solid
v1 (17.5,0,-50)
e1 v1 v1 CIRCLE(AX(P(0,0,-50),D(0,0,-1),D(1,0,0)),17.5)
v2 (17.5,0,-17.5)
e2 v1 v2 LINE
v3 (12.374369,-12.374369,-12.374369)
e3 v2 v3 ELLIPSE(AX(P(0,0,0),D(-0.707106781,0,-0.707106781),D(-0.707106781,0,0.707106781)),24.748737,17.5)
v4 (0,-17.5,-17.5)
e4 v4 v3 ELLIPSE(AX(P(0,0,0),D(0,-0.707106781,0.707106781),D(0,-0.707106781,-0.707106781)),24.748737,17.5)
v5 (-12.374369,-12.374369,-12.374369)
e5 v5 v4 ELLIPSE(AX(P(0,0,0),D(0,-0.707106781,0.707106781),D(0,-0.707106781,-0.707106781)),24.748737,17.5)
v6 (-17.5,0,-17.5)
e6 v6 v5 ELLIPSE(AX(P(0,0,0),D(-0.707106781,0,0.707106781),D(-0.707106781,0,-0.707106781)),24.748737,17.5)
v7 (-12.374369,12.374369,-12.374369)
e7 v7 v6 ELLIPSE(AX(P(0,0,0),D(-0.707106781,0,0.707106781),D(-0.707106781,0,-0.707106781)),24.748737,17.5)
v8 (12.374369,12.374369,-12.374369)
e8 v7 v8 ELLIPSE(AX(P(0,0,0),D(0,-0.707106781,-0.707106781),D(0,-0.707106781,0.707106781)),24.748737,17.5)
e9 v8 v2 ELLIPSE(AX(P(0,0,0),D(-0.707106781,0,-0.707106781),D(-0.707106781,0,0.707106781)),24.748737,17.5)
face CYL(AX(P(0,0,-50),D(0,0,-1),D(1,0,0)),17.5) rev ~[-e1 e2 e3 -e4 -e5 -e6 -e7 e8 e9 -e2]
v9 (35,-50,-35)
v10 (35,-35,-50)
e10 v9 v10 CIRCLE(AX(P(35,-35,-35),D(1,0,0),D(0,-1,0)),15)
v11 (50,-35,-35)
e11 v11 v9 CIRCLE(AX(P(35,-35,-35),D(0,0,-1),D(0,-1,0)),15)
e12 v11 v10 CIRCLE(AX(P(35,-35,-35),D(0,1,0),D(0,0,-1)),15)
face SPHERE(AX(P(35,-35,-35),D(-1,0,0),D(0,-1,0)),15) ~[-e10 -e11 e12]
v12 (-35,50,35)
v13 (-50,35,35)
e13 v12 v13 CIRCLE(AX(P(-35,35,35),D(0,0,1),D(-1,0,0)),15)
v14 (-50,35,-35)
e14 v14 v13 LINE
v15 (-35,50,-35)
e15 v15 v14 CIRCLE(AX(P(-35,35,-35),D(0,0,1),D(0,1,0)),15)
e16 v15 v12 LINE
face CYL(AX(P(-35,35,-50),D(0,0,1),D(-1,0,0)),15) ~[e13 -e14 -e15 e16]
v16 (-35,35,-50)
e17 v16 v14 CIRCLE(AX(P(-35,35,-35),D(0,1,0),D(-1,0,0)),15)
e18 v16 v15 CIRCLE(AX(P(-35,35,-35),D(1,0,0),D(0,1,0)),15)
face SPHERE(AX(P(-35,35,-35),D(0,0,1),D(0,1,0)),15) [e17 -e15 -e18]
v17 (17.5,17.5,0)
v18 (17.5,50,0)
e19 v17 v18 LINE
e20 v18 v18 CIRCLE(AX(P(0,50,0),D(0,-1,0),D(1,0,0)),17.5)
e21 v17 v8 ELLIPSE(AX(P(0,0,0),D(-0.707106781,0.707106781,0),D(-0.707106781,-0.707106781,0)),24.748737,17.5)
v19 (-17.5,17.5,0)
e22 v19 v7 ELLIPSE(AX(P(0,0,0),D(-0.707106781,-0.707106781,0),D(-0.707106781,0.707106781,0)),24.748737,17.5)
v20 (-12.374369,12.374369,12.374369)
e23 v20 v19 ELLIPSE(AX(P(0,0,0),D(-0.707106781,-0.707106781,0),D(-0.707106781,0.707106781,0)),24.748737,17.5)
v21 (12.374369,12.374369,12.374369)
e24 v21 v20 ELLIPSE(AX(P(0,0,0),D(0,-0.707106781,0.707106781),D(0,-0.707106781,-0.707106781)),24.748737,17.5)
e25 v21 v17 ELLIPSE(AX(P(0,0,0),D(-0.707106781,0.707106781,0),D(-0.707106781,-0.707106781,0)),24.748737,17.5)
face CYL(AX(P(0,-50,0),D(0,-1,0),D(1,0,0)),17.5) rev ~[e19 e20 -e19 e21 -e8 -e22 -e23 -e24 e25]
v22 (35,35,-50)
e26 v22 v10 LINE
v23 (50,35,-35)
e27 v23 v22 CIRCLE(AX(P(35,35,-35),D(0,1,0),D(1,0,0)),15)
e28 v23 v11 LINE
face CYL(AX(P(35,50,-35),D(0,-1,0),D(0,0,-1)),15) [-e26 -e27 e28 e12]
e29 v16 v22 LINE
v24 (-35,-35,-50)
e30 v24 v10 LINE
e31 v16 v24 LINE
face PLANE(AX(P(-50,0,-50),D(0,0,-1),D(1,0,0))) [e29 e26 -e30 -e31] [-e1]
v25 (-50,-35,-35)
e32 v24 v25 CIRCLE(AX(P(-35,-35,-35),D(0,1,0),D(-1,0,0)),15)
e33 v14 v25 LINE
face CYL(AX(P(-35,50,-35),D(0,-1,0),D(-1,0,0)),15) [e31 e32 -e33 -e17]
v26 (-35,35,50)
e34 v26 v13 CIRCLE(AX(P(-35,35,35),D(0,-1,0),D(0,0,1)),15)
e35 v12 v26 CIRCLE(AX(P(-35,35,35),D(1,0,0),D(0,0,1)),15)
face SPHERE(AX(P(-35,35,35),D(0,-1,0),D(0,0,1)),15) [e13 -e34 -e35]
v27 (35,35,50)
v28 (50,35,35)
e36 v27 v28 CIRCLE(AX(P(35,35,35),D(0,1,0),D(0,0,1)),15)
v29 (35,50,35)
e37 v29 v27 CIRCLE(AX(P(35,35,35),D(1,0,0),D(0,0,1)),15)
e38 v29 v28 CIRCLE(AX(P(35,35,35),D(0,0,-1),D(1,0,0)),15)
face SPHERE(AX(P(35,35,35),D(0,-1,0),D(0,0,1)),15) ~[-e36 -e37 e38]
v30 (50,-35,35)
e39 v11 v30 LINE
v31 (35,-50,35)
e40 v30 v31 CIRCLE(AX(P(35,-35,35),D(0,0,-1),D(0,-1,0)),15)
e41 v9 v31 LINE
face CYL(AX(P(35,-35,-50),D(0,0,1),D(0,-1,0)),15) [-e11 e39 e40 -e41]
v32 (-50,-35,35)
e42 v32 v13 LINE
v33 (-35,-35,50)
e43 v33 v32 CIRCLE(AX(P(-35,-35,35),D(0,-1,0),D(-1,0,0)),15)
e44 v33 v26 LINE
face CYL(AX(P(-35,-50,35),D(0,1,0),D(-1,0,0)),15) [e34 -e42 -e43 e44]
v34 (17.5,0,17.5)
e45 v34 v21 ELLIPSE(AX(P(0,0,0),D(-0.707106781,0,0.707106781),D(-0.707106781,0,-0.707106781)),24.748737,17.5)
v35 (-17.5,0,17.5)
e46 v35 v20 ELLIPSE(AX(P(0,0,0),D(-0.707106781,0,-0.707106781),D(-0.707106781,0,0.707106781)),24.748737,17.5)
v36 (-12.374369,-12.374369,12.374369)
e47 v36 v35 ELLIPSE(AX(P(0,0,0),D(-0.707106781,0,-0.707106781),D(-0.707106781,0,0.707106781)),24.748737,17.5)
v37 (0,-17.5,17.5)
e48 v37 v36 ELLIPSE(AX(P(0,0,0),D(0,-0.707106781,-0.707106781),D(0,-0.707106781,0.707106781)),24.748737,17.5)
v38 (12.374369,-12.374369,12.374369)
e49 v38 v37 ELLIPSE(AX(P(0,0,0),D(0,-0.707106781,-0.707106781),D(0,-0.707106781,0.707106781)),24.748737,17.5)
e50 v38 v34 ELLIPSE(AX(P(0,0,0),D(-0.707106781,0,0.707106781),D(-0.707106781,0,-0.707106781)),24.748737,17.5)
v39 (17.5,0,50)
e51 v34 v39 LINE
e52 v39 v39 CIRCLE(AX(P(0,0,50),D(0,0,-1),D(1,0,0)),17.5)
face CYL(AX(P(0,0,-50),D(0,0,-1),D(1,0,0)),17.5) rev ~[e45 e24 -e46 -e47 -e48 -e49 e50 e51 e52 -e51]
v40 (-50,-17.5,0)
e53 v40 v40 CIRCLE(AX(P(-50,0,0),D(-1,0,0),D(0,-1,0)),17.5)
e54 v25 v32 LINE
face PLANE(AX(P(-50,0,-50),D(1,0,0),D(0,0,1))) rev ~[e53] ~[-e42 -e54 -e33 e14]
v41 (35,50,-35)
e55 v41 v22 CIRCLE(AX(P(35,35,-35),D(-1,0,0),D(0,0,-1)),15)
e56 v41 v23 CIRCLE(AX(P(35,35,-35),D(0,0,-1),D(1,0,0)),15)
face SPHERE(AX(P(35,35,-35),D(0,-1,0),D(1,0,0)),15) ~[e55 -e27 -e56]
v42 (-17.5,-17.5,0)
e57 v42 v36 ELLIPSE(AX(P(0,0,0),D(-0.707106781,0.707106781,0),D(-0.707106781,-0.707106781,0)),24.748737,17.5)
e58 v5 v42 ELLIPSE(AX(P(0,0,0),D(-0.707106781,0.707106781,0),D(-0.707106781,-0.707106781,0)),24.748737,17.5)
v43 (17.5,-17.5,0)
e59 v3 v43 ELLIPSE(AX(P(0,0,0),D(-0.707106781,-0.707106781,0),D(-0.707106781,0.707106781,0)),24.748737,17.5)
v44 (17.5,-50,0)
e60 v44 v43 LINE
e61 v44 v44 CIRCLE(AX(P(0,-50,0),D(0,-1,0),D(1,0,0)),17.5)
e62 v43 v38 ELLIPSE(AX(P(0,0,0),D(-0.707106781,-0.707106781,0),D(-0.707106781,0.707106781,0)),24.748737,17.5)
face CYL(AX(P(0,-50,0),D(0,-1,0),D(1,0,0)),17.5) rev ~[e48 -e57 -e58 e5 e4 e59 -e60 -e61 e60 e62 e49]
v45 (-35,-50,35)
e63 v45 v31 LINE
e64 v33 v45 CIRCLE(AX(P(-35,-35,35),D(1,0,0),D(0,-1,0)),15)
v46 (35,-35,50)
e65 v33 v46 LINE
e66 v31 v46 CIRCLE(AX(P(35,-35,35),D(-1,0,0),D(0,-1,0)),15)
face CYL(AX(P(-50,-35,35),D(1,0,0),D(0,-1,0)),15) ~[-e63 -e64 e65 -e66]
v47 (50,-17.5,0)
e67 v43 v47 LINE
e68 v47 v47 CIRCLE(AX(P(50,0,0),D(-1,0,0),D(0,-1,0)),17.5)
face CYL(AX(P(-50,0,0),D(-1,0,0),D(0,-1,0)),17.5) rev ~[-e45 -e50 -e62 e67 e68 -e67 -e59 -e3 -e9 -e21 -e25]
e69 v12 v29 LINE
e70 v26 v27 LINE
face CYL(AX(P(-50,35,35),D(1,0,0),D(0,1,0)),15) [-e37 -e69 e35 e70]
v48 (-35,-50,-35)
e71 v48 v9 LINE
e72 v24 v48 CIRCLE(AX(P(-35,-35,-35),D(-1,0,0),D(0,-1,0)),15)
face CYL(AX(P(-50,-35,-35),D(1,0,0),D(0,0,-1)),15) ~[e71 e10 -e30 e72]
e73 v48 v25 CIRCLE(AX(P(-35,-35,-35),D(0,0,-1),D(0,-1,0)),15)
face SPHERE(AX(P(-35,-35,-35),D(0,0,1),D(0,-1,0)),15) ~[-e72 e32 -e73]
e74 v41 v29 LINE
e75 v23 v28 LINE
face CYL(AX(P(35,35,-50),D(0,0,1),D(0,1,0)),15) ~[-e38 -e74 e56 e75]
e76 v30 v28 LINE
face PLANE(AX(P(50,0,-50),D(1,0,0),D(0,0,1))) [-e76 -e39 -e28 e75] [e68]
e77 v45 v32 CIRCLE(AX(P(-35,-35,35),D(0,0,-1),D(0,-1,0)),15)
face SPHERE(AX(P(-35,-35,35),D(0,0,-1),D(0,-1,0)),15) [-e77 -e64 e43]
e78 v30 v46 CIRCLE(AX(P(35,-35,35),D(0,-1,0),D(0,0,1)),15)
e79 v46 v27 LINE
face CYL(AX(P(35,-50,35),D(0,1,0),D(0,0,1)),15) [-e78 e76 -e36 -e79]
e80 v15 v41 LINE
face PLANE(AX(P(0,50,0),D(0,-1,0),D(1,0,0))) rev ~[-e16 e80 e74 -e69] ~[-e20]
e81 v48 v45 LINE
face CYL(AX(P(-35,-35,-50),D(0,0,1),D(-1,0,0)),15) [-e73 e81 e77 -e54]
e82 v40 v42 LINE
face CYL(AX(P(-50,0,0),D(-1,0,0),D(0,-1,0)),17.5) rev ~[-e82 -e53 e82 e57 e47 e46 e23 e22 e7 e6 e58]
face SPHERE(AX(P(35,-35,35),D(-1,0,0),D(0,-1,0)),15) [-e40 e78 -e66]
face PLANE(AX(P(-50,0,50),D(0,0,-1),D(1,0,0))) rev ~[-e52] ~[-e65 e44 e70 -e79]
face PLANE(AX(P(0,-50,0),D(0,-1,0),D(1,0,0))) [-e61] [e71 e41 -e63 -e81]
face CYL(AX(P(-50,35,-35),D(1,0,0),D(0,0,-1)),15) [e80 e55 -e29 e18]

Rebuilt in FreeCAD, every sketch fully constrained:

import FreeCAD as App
import Part
import Sketcher


def edges_at(feature, points):
    """Names of the edges that pass closest to the given points."""
    edges = feature.Shape.Edges
    near = lambda p: min(range(len(edges)), key=lambda i: edges[i].distToShape(Part.Vertex(*p))[0])
    return sorted({f"Edge{near(p) + 1}" for p in points})

doc = App.newDocument("Part")
body = doc.addObject("PartDesign::Body", "Body")

sketch1 = body.newObject("Sketcher::SketchObject", "Sketch")
sketch1.AttachmentSupport = (doc.getObject("XZ_Plane"), [""])
sketch1.MapMode = "FlatFace"
sketch1.addGeometry([
    Part.LineSegment(App.Vector(-50, 50, 0), App.Vector(-50, -50, 0)),
    Part.LineSegment(App.Vector(-50, -50, 0), App.Vector(50, -50, 0)),
    Part.LineSegment(App.Vector(50, -50, 0), App.Vector(50, 50, 0)),
    Part.LineSegment(App.Vector(50, 50, 0), App.Vector(-50, 50, 0)),
], False)
sketch1.addConstraint([
    Sketcher.Constraint("Coincident", 0, 2, 1, 1),
    Sketcher.Constraint("Coincident", 1, 2, 2, 1),
    Sketcher.Constraint("Coincident", 2, 2, 3, 1),
    Sketcher.Constraint("Coincident", 3, 2, 0, 1),
    Sketcher.Constraint("Vertical", 0),
    Sketcher.Constraint("Horizontal", 1),
    Sketcher.Constraint("Vertical", 2),
    Sketcher.Constraint("Horizontal", 3),
    Sketcher.Constraint("Symmetric", 0, 2, 2, 2, -1, 1),
    Sketcher.Constraint("Equal", 3, 0),
    Sketcher.Constraint("DistanceX", 1, 1, 1, 2, 100.0),
])
pad1 = body.newObject("PartDesign::Pad", "Pad")
pad1.Profile = sketch1
pad1.Length = 100
pad1.Midplane = True

sketch2 = body.newObject("Sketcher::SketchObject", "Sketch001")
sketch2.AttachmentSupport = (doc.getObject("YZ_Plane"), [""])
sketch2.MapMode = "FlatFace"
sketch2.AttachmentOffset = App.Placement(App.Vector(0, 0, -50), App.Rotation())
sketch2.addGeometry(Part.Circle(App.Vector(0, 0, 0), App.Vector(0, 0, 1), 18), False)
sketch2.addConstraint([
    Sketcher.Constraint("Coincident", 0, 3, -1, 1),
    Sketcher.Constraint("Diameter", 0, 35.0),
])
pad2 = body.newObject("PartDesign::Pad", "Pad001")
pad2.Profile = sketch2
pad2.Type = "UpToLast"

sketch3 = body.newObject("Sketcher::SketchObject", "Sketch002")
sketch3.AttachmentSupport = (doc.getObject("YZ_Plane"), [""])
sketch3.MapMode = "FlatFace"
sketch3.AttachmentOffset = App.Placement(App.Vector(0, 0, -50), App.Rotation())
sketch3.addGeometry(Part.Circle(App.Vector(0, 0, 0), App.Vector(0, 0, 1), 18), False)
sketch3.addConstraint([
    Sketcher.Constraint("Coincident", 0, 3, -1, 1),
    Sketcher.Constraint("Diameter", 0, 35.0),
])
pocket1 = body.newObject("PartDesign::Pocket", "Pocket")
pocket1.Profile = sketch3
pocket1.Type = "ThroughAll"
pocket1.Reversed = True

sketch4 = body.newObject("Sketcher::SketchObject", "Sketch003")
sketch4.AttachmentSupport = (doc.getObject("XZ_Plane"), [""])
sketch4.MapMode = "FlatFace"
sketch4.AttachmentOffset = App.Placement(App.Vector(0, 0, 50), App.Rotation())
sketch4.addGeometry(Part.Circle(App.Vector(0, 0, 0), App.Vector(0, 0, 1), 18), False)
sketch4.addConstraint([
    Sketcher.Constraint("Coincident", 0, 3, -1, 1),
    Sketcher.Constraint("Diameter", 0, 35.0),
])
pocket2 = body.newObject("PartDesign::Pocket", "Pocket001")
pocket2.Profile = sketch4
pocket2.Type = "ThroughAll"

sketch5 = body.newObject("Sketcher::SketchObject", "Sketch004")
sketch5.AttachmentSupport = (doc.getObject("XY_Plane"), [""])
sketch5.MapMode = "FlatFace"
sketch5.AttachmentOffset = App.Placement(App.Vector(0, 0, -50), App.Rotation())
sketch5.addGeometry(Part.Circle(App.Vector(0, 0, 0), App.Vector(0, 0, 1), 18), False)
sketch5.addConstraint([
    Sketcher.Constraint("Coincident", 0, 3, -1, 1),
    Sketcher.Constraint("Diameter", 0, 35.0),
])
pocket3 = body.newObject("PartDesign::Pocket", "Pocket002")
pocket3.Profile = sketch5
pocket3.Type = "ThroughAll"
pocket3.Reversed = True
doc.recompute()

fillet = body.newObject("PartDesign::Fillet", "Fillet")
fillet.Base = (pocket3, edges_at(pocket3, [
    (-50, -50, 0),
    (0, -50, 50),
    (0, -50, -50),
    (50, -50, 0),
    (50, 0, -50),
    (50, 0, 50),
    (-50, 0, 50),
    (0, 50, 50),
    (50, 50, 0),
    (-50, 50, 0),
    (0, 50, -50),
    (-50, 0, -50),
]))
fillet.Radius = 15

doc.recompute()
